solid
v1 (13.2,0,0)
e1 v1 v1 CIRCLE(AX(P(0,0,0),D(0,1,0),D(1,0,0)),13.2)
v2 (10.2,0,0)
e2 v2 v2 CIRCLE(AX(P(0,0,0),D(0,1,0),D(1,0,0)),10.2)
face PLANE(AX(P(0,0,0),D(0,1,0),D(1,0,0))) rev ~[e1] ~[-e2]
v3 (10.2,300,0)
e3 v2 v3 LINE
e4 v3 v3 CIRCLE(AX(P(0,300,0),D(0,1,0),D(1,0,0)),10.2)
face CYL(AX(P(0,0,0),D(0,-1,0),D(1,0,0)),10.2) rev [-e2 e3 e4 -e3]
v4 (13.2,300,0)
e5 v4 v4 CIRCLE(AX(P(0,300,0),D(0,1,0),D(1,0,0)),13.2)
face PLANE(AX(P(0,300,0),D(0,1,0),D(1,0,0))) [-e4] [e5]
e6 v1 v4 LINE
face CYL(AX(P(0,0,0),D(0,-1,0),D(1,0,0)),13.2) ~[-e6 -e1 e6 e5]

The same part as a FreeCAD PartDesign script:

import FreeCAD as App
import Part
import Sketcher

V = App.Vector
Q = App.Units.Quantity

doc = App.newDocument("Part")
params = doc.addObject("Spreadsheet::Sheet", "Params")
for row, (alias, value) in enumerate([
    ("sketch1_diameter", "26.4 mm"),
    ("sketch1_diameter2", "20.4 mm"),
    ("pad1_length", "300 mm"),
], start=1):
    params.set(f"A{row}", alias)
    params.set(f"B{row}", "=" + value)
    params.setAlias(f"B{row}", alias)

body = doc.addObject("PartDesign::Body", "Body")

sketch1 = body.newObject("Sketcher::SketchObject", "Sketch")
sketch1.AttachmentSupport = (doc.getObject("XZ_Plane"), [""])
sketch1.MapMode = "FlatFace"
sketch1.addGeometry(Part.Circle(V(0, 0, 0), V(0, 0, 1), 13), False)
sketch1.addGeometry(Part.Circle(V(0, 0, 0), V(0, 0, 1), 10), False)
sketch1.addConstraint(Sketcher.Constraint("Coincident", 0, 3, -1, 1))
sketch1.addConstraint(Sketcher.Constraint("Coincident", 1, 3, -1, 1))
sketch1.addConstraint(Sketcher.Constraint("Diameter", 0, Q("26.4 mm")))
sketch1.addConstraint(Sketcher.Constraint("Diameter", 1, Q("20.4 mm")))
sketch1.setExpression("Constraints[2]", "Params.sketch1_diameter")
sketch1.setExpression("Constraints[3]", "Params.sketch1_diameter2")
pad1 = body.newObject("PartDesign::Pad", "Pad")
pad1.Profile = sketch1
pad1.setExpression("Length", "Params.pad1_length")
pad1.Reversed = True

doc.recompute()
